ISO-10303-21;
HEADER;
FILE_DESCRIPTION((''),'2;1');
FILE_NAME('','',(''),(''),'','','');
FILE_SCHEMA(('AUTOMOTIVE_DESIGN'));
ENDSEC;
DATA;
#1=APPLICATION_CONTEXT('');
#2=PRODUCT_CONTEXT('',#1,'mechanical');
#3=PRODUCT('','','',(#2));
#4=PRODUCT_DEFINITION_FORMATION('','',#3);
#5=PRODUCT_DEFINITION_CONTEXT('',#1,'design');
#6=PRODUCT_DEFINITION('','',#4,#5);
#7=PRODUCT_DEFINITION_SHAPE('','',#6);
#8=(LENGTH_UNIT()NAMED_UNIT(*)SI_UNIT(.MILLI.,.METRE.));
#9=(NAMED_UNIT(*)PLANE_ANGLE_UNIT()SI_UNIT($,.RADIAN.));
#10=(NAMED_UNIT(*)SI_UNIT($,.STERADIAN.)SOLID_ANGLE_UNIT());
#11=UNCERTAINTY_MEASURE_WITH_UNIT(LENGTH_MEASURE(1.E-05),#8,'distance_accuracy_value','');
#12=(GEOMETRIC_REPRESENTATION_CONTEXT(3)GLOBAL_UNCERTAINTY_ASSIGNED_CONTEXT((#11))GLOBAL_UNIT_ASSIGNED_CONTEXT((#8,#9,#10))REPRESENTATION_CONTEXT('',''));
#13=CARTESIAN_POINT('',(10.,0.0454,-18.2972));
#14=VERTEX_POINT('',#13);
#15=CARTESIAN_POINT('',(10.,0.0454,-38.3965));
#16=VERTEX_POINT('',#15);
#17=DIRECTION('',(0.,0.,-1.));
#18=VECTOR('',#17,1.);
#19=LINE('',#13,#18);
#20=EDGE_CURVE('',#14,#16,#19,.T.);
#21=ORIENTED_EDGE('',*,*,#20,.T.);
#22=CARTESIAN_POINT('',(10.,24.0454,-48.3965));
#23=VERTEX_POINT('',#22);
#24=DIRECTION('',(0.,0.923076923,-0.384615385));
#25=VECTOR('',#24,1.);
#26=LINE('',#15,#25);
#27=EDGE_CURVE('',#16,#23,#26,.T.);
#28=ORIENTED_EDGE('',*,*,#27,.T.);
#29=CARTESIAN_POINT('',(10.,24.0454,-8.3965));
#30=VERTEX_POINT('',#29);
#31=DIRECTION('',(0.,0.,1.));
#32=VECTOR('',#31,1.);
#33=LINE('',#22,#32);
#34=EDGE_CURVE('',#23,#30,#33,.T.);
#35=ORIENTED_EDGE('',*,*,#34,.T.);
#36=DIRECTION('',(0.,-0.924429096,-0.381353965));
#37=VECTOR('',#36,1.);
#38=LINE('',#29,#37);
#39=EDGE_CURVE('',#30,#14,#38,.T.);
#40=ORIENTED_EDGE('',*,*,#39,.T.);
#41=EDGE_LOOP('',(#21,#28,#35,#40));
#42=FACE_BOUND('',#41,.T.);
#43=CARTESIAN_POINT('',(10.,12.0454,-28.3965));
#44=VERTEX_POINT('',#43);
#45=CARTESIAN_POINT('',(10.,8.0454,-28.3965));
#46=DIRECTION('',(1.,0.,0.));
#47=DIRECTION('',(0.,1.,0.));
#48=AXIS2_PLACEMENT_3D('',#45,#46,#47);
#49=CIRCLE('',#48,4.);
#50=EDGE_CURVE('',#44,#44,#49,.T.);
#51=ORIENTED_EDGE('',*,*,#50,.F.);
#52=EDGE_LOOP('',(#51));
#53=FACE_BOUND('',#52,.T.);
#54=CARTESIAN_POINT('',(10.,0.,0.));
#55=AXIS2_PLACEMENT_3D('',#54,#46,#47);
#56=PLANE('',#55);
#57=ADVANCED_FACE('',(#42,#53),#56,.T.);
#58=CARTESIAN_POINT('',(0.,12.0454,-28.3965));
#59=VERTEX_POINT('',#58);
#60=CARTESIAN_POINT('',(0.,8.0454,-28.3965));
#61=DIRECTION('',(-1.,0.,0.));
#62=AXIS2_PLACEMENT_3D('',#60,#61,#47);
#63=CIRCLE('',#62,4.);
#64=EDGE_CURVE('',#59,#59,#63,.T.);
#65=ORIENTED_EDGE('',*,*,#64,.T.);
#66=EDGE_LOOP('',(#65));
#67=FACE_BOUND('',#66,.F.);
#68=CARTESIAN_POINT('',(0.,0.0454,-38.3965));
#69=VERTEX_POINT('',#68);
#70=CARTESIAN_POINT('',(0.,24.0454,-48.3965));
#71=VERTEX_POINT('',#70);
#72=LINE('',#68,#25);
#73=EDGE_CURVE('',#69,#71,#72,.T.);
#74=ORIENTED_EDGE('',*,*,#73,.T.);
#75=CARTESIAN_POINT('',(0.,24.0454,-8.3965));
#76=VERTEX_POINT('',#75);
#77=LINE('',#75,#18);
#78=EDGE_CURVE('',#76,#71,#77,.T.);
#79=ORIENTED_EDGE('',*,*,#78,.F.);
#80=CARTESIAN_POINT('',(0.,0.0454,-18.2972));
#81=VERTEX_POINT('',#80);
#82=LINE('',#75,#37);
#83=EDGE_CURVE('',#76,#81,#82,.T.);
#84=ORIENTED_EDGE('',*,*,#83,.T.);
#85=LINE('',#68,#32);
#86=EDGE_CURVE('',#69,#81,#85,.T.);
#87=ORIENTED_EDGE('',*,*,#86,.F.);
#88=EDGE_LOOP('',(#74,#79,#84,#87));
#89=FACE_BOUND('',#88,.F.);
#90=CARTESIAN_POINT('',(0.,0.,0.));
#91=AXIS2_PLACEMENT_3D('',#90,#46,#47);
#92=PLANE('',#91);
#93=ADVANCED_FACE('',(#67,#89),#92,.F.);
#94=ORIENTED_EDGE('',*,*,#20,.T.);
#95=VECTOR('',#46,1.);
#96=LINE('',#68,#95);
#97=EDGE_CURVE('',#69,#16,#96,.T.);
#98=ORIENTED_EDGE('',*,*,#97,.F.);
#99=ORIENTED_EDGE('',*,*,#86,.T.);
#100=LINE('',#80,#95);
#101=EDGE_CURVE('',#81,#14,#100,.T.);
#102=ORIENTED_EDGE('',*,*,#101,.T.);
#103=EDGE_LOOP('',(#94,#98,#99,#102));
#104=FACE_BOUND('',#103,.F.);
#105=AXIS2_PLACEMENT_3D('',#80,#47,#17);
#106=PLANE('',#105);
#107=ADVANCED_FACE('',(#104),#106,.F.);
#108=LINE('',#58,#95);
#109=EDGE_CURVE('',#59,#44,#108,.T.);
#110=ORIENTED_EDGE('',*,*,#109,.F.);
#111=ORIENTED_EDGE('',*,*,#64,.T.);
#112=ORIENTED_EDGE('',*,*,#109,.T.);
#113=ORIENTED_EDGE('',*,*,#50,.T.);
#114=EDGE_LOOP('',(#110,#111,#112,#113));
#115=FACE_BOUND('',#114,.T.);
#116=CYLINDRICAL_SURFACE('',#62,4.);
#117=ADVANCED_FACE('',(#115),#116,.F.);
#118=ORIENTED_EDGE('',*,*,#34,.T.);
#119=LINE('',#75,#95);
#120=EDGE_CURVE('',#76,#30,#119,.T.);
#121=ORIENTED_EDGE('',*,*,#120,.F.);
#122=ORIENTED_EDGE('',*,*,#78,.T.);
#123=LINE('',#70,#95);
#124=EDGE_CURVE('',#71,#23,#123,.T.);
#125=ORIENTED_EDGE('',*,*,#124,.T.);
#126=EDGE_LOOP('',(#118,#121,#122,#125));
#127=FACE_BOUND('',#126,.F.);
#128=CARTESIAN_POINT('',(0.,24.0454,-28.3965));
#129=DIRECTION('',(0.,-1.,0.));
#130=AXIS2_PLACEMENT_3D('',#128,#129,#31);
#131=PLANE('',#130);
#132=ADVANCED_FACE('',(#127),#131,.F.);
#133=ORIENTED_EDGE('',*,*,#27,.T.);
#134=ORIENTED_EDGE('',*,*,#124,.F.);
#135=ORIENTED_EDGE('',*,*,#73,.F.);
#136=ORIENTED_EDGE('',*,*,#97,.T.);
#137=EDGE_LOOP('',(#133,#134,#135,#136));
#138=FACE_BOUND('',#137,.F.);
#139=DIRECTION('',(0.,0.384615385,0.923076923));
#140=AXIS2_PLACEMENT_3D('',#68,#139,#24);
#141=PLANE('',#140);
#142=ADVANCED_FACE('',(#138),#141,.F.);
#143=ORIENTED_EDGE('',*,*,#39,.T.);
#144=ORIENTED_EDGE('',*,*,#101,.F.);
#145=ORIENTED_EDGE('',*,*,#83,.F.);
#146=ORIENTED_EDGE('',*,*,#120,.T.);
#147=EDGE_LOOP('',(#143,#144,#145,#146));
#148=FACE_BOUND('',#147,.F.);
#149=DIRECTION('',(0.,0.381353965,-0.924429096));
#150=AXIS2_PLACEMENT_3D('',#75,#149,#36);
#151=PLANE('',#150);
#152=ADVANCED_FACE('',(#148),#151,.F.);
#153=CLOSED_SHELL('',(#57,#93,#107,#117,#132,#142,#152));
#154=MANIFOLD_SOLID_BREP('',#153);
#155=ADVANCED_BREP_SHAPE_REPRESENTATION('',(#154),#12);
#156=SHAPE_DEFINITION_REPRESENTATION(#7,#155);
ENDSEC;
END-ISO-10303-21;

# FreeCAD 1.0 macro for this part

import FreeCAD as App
import Part
import Sketcher

V = App.Vector
Q = App.Units.Quantity


def add_polygon(sketch, points):
    """Adds a closed chain of lines whose ends are joined by coincident constraints."""
    first, n = sketch.GeometryCount, len(points)
    for a, b in zip(points, points[1:] + points[:1]):
        sketch.addGeometry(Part.LineSegment(App.Vector(*a, 0), App.Vector(*b, 0)), False)
    for i in range(n):
        sketch.addConstraint(Sketcher.Constraint("Coincident", first + i, 2, first + (i + 1) % n, 1))

doc = App.newDocument("Part")
body = doc.addObject("PartDesign::Body", "Body")

# Sketch on YZ plane
sketch1 = doc.addObject("Sketcher::SketchObject", "Sketch")
body.addObject(sketch1)
sketch1.AttachmentSupport = (doc.YZ_Plane, [""])
sketch1.MapMode = "FlatFace"
add_polygon(sketch1, [(0.0454, -18.2972), (0.0454, -38.3965), (24.0454, -48.3965), (24.0454, -8.3965)])  # lines 0-3
sketch1.addGeometry(Part.Circle(V(8.0454, -28.3965, 0), V(0, 0, 1), 4), False)  # 4
sketch1.addConstraint([
    Sketcher.Constraint("Vertical", 0),
    Sketcher.Constraint("Vertical", 2),
    Sketcher.Constraint("Diameter", 4, Q("8 mm")),
    Sketcher.Constraint("DistanceY", 2, 1, 2, 2, Q("40 mm")),
    Sketcher.Constraint("Distance", 1, Q("26 mm")),
    Sketcher.Constraint("DistanceX", 0, 2, 4, 3, Q("8 mm")),
    Sketcher.Constraint("DistanceY", 0, 2, 4, 3, Q("10 mm")),
    Sketcher.Constraint("DistanceX", 4, 3, 1, 2, Q("16 mm")),
    Sketcher.Constraint("Distance", 3, Q("25.962 mm")),
    Sketcher.Constraint("DistanceX", -1, 1, 4, 3, Q("8.0454 mm")),
    Sketcher.Constraint("DistanceY", 4, 3, -1, 1, Q("28.3965 mm")),
])
pad1 = doc.addObject("PartDesign::Pad", "Pad")
body.addObject(pad1)
pad1.Profile = sketch1
pad1.Length = 10

doc.recompute()
